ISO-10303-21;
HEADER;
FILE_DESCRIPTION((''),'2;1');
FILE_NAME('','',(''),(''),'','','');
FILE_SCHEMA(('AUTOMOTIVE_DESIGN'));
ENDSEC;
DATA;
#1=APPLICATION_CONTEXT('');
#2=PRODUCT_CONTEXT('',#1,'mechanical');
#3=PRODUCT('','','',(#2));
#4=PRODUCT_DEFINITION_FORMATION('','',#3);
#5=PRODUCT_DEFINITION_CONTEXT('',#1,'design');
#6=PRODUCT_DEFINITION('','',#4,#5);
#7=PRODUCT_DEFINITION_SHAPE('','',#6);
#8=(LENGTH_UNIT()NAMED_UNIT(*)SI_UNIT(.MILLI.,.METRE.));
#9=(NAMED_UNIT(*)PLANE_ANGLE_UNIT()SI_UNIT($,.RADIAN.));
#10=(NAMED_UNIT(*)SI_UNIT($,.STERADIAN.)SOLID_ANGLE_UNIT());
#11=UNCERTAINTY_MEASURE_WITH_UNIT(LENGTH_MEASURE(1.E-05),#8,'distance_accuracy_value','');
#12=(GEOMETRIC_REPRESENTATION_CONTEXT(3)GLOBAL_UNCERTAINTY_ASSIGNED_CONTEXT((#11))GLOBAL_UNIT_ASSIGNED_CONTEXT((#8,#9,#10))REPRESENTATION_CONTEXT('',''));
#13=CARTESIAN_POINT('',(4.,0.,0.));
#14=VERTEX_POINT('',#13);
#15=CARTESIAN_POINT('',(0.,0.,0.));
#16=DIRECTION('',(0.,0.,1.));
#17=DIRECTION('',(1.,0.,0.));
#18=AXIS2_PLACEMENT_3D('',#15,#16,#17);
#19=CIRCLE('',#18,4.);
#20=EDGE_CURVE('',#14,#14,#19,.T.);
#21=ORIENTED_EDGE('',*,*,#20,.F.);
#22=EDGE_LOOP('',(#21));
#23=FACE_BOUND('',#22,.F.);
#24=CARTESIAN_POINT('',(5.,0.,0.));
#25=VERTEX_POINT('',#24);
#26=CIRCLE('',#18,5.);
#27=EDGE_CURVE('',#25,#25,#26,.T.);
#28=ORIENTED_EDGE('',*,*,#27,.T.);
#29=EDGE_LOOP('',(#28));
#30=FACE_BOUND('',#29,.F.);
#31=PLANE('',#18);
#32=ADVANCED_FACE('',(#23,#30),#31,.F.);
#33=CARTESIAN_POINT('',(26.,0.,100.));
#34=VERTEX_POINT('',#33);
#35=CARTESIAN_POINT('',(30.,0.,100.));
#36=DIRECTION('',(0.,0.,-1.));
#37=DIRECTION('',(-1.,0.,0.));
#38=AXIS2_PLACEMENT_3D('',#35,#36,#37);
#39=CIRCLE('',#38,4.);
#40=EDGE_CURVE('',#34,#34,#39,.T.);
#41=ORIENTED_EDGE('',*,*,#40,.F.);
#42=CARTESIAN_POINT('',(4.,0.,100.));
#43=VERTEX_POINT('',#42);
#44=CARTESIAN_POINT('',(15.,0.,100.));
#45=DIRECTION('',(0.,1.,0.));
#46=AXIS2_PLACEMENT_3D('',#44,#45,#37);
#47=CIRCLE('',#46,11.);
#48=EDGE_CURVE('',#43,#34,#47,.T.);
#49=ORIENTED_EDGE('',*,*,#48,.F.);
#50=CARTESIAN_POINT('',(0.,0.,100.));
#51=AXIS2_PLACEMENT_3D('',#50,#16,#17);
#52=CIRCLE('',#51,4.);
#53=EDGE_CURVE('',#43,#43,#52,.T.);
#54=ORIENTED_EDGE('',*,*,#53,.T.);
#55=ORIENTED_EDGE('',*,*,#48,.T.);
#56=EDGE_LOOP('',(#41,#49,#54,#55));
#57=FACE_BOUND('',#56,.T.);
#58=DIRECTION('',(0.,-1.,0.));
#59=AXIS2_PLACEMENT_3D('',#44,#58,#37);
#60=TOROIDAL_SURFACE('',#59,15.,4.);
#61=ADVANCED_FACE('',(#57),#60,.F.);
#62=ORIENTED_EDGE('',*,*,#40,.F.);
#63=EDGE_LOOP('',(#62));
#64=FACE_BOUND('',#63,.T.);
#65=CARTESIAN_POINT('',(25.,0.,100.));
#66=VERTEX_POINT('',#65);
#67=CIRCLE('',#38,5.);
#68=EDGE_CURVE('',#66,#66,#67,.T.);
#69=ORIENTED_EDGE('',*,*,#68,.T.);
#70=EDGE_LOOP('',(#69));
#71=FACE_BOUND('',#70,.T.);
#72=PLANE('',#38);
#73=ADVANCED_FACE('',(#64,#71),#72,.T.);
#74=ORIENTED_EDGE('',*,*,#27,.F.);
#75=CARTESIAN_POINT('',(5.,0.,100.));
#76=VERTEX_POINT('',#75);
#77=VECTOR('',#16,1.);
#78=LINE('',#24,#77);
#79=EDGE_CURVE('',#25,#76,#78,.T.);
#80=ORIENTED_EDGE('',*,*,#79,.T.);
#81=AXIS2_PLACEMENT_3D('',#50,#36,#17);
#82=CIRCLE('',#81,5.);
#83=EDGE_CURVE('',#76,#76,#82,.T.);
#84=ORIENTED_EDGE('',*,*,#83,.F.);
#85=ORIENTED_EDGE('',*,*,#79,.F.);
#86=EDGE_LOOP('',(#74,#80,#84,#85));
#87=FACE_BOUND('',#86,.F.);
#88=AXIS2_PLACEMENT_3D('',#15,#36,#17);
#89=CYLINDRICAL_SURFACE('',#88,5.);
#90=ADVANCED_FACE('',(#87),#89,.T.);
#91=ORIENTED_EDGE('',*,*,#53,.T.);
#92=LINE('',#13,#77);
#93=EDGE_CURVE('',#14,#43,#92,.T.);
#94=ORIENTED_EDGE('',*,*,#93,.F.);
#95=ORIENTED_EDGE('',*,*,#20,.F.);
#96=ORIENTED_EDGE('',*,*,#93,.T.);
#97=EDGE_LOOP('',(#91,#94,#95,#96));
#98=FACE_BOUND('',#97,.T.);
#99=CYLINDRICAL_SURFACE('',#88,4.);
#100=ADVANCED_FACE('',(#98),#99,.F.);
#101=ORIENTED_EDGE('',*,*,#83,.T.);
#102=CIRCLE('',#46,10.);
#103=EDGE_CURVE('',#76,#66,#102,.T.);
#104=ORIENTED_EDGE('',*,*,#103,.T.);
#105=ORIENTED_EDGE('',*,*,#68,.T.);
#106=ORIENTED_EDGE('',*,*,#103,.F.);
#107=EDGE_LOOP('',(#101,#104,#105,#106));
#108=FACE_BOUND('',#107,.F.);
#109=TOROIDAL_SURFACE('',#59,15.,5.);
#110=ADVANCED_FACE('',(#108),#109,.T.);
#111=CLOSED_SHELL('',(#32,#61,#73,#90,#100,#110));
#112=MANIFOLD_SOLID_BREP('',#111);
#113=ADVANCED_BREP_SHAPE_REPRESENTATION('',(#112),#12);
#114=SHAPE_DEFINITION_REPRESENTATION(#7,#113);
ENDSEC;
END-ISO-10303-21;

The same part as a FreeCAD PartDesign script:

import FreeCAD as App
import Part
import Sketcher
from FreeCAD import Vector

doc = App.newDocument("Part")
body = doc.addObject("PartDesign::Body", "Body")

# Sketch on XY plane
sketch1 = body.newObject("Sketcher::SketchObject", "Sketch")
sketch1.AttachmentSupport = (doc.getObject("XY_Plane"), [""])
sketch1.MapMode = "FlatFace"
sketch1.addGeometry([
    Part.Circle(Vector(0, 0, 0), Vector(0, 0, 1), 5),
    Part.Circle(Vector(0, 0, 0), Vector(0, 0, 1), 4),
], False)
sketch1.addConstraint([
    Sketcher.Constraint("Coincident", 0, 3, -1, 1),
    Sketcher.Constraint("Coincident", 1, 3, -1, 1),
    Sketcher.Constraint("Diameter", 0, 10.0),
    Sketcher.Constraint("Diameter", 1, 8.0),
])
pad1 = body.newObject("PartDesign::Pad", "Pad")
pad1.Profile = sketch1
pad1.Length = 100

# Sketch on XY plane
sketch2 = body.newObject("Sketcher::SketchObject", "Sketch001")
sketch2.AttachmentSupport = (doc.getObject("XY_Plane"), [""])
sketch2.MapMode = "FlatFace"
sketch2.AttachmentOffset = App.Placement(Vector(0, 0, 100), App.Rotation())
sketch2.addGeometry([
    Part.Circle(Vector(0, 0, 0), Vector(0, 0, 1), 5),
    Part.Circle(Vector(0, 0, 0), Vector(0, 0, 1), 4),
], False)
sketch2.addGeometry(Part.LineSegment(Vector(15, 0, 0), Vector(15, 10, 0)), True)  # axis
sketch2.addConstraint([
    Sketcher.Constraint("Vertical", 2),
    Sketcher.Constraint("Coincident", 0, 3, -1, 1),
    Sketcher.Constraint("Coincident", 1, 3, -1, 1),
    Sketcher.Constraint("PointOnObject", 2, 1, -1),
    Sketcher.Constraint("Diameter", 0, 10.0),
    Sketcher.Constraint("Diameter", 1, 8.0),
    Sketcher.Constraint("DistanceY", 2, 1, 2, 2, 10.0),
    Sketcher.Constraint("DistanceX", -1, 1, 2, 1, 15.0),
])
revolution = body.newObject("PartDesign::Revolution", "Revolution")
revolution.Profile = sketch2
revolution.ReferenceAxis = (sketch2, ["Axis0"])
revolution.Angle = 180

doc.recompute()
